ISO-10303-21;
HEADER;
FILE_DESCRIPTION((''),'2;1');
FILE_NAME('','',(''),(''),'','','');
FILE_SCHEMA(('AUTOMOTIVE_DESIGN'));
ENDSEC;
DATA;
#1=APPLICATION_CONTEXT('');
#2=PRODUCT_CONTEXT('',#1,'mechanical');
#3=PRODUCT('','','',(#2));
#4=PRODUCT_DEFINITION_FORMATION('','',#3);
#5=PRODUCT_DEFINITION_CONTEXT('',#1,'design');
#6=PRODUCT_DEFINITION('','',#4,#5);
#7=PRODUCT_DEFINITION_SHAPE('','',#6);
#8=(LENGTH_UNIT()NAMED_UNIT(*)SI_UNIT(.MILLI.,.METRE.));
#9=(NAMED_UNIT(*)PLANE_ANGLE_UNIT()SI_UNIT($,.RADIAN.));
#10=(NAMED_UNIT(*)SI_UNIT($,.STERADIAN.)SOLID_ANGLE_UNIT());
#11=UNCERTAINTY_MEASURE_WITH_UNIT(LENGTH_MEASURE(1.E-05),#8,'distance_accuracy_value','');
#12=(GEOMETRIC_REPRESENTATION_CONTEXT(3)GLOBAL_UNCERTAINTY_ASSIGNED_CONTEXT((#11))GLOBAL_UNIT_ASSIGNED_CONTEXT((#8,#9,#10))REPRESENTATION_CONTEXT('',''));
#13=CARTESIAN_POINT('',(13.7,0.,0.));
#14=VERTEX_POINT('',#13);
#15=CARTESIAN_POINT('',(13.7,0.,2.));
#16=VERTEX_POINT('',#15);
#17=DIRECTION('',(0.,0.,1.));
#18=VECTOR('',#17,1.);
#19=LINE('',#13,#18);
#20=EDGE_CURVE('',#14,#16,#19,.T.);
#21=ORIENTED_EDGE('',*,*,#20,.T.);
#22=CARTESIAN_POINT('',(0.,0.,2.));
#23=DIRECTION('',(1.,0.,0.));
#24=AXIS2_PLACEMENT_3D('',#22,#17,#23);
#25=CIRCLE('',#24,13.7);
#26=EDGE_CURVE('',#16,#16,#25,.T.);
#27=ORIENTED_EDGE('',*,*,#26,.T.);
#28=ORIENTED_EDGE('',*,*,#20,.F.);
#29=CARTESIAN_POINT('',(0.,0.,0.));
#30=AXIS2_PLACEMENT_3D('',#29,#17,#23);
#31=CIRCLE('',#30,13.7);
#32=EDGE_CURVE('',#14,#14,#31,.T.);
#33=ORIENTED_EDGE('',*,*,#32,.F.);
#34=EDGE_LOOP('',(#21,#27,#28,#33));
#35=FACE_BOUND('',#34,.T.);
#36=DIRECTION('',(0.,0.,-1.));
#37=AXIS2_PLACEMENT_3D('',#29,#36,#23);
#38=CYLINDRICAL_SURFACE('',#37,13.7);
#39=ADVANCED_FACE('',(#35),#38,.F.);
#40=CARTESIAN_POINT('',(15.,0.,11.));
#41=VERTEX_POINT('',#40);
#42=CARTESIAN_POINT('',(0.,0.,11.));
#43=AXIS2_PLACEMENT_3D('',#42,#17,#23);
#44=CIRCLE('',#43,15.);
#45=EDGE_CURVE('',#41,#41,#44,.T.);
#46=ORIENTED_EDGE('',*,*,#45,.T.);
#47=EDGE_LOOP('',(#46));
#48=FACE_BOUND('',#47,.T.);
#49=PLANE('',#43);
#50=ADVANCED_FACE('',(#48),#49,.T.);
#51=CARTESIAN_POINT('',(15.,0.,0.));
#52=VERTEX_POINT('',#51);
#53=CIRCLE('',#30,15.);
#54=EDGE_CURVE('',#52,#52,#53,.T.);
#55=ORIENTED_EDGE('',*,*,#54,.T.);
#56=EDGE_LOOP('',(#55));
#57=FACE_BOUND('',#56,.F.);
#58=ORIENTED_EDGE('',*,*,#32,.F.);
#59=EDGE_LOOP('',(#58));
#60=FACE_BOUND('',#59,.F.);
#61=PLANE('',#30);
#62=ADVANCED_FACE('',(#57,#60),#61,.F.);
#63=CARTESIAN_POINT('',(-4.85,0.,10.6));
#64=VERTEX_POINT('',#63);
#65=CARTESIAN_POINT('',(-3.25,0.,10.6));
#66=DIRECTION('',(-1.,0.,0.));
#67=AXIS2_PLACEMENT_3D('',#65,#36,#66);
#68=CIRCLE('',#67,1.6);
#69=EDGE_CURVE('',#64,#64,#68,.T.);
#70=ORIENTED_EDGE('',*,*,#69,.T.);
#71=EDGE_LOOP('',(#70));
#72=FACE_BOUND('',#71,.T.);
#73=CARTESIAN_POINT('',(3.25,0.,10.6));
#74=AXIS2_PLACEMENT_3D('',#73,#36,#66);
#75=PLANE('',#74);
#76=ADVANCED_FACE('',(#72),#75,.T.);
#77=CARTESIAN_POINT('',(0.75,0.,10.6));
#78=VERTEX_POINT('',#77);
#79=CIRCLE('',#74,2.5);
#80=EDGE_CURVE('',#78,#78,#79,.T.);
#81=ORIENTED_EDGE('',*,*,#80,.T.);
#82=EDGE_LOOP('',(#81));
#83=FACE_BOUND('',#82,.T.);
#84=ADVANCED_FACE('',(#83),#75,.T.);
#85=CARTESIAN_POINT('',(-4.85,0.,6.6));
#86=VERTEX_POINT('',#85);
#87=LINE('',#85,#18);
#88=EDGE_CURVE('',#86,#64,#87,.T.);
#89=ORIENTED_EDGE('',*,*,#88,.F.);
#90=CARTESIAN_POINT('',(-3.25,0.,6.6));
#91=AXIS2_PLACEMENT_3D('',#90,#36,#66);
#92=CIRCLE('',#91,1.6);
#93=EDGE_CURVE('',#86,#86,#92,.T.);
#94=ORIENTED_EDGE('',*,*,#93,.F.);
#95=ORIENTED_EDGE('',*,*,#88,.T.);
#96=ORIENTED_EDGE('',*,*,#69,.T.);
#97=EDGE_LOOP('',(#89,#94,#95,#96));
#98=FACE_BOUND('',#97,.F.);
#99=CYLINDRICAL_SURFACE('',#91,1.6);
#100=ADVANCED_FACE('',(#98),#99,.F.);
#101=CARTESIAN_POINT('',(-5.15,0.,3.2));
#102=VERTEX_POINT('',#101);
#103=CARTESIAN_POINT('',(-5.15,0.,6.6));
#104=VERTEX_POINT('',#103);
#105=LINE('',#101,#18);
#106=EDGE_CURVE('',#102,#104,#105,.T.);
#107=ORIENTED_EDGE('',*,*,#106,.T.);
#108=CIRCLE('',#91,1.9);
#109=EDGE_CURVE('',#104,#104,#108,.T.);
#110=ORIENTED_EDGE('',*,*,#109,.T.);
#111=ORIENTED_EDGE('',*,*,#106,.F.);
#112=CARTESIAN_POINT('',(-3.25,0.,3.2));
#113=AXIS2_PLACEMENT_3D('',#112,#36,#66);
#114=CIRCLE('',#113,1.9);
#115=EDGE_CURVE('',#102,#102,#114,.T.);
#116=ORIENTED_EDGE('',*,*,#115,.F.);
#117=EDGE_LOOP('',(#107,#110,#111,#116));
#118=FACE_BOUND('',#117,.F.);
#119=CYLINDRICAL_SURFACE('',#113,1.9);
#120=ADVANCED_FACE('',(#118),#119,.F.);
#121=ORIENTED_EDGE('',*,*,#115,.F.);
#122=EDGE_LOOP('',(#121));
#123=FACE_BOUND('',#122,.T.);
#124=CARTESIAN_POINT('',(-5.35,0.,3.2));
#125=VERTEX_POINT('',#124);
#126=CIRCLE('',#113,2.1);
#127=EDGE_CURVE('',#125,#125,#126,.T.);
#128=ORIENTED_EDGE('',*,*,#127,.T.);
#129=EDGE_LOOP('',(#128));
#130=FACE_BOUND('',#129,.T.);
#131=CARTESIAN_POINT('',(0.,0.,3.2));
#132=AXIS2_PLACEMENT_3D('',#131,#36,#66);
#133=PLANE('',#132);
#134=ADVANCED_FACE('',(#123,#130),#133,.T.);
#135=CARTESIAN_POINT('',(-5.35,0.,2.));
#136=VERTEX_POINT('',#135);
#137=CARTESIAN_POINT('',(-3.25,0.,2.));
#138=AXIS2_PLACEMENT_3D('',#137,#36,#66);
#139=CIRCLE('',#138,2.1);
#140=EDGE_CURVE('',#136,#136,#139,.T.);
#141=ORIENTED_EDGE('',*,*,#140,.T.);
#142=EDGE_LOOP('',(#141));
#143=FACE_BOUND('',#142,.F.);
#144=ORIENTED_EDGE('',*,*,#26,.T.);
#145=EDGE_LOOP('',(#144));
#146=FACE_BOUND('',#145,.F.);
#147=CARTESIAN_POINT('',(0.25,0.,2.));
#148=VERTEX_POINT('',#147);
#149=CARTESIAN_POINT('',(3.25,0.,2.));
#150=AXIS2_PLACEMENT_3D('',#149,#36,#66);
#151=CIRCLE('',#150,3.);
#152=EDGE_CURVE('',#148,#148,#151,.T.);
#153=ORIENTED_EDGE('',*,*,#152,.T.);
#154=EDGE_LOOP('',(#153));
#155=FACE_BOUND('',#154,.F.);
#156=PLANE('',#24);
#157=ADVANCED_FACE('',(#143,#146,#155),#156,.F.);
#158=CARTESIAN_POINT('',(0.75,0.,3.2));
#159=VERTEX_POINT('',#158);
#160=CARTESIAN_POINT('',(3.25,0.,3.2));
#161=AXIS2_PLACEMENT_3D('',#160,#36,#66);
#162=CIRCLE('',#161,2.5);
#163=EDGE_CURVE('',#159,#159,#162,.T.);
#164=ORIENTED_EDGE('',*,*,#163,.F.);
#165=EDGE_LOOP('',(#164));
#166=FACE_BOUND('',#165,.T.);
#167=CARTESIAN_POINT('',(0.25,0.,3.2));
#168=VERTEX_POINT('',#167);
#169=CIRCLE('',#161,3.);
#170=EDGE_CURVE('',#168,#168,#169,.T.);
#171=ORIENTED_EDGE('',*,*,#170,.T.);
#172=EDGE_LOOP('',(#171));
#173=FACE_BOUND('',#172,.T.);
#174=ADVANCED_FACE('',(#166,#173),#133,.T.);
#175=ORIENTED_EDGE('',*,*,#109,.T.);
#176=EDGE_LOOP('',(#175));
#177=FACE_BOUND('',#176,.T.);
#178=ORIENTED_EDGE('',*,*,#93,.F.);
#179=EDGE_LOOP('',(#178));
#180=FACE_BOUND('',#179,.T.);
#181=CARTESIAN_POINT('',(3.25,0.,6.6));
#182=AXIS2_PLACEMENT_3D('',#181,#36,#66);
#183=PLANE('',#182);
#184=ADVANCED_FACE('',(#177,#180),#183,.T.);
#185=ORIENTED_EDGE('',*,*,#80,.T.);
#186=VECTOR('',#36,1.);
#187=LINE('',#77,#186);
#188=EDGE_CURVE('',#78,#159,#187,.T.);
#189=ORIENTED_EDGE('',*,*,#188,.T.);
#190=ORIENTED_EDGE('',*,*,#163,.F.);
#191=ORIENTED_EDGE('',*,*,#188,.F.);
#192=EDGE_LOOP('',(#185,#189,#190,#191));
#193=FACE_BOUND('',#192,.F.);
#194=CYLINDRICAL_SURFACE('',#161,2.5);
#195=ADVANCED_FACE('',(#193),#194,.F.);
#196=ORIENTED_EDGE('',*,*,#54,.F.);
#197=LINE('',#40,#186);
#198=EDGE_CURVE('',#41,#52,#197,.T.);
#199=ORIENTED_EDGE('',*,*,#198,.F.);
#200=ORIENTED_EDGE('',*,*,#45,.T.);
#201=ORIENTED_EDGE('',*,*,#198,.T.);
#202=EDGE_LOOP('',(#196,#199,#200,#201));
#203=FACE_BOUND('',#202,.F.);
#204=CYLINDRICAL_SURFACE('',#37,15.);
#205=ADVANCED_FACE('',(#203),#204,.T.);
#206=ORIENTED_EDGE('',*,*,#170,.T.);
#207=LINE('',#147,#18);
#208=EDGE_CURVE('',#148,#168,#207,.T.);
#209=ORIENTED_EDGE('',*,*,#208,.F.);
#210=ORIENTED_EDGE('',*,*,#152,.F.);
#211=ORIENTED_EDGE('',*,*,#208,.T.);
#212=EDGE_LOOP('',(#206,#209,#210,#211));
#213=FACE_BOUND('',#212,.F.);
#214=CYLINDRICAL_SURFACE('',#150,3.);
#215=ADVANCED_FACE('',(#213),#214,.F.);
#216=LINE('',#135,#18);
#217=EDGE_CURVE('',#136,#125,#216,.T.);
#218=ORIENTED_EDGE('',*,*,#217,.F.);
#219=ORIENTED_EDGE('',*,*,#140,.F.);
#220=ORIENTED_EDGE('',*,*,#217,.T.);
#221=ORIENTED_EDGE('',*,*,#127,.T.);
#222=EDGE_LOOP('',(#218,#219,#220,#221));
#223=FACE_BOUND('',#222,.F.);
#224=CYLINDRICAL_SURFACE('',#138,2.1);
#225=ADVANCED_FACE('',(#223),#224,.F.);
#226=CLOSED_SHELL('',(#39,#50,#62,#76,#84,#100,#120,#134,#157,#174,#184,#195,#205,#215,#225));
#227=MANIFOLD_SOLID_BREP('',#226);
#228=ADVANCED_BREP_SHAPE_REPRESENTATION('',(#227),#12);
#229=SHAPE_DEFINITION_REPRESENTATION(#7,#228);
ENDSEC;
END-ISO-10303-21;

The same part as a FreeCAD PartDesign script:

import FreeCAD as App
import Part
import Sketcher
from FreeCAD import Vector

doc = App.newDocument("Part")
body = doc.addObject("PartDesign::Body", "Body")

sketch1 = body.newObject("Sketcher::SketchObject", "Sketch")
sketch1.AttachmentSupport = (doc.getObject("XY_Plane"), [""])
sketch1.MapMode = "FlatFace"
sketch1.addGeometry([
    Part.Circle(Vector(0, 0, 0), Vector(0, 0, 1), 15),
    Part.Circle(Vector(0, 0, 0), Vector(0, 0, 1), 14),
], False)
sketch1.addConstraint([
    Sketcher.Constraint("Coincident", 0, 3, -1, 1),
    Sketcher.Constraint("Coincident", 1, 3, -1, 1),
    Sketcher.Constraint("Diameter", 0, 30.0),
    Sketcher.Constraint("Diameter", 1, 27.4),
])
pad1 = body.newObject("PartDesign::Pad", "Pad")
pad1.Profile = sketch1
pad1.Length = 2

sketch2 = body.newObject("Sketcher::SketchObject", "Sketch001")
sketch2.AttachmentSupport = (doc.getObject("XY_Plane"), [""])
sketch2.MapMode = "FlatFace"
sketch2.AttachmentOffset = App.Placement(Vector(0, 0, 2), App.Rotation())
sketch2.addGeometry(Part.Circle(Vector(0, 0, 0), Vector(0, 0, 1), 15), False)
sketch2.addConstraint([
    Sketcher.Constraint("Coincident", 0, 3, -1, 1),
    Sketcher.Constraint("Diameter", 0, 30.0),
])
pad2 = body.newObject("PartDesign::Pad", "Pad001")
pad2.Profile = sketch2
pad2.Length = 9

sketch3 = body.newObject("Sketcher::SketchObject", "Sketch002")
sketch3.AttachmentSupport = (doc.getObject("XY_Plane"), [""])
sketch3.MapMode = "FlatFace"
sketch3.AttachmentOffset = App.Placement(Vector(0, 0, 2), App.Rotation())
sketch3.addGeometry([
    Part.Circle(Vector(-3.2, 0, 0), Vector(0, 0, 1), 2.1),
    Part.Circle(Vector(3.2, 0, 0), Vector(0, 0, 1), 3),
], False)
sketch3.addConstraint([
    Sketcher.Constraint("Symmetric", 0, 3, 1, 3, -1, 1),
    Sketcher.Constraint("PointOnObject", 0, 3, -1),
    Sketcher.Constraint("Diameter", 1, 6.0),
    Sketcher.Constraint("Diameter", 0, 4.2),
    Sketcher.Constraint("DistanceX", 0, 3, 1, 3, 6.5),
])
pocket1 = body.newObject("PartDesign::Pocket", "Pocket")
pocket1.Profile = sketch3
pocket1.Length = 1.2
pocket1.Reversed = True

sketch4 = body.newObject("Sketcher::SketchObject", "Sketch003")
sketch4.AttachmentSupport = (doc.getObject("XY_Plane"), [""])
sketch4.MapMode = "FlatFace"
sketch4.AttachmentOffset = App.Placement(Vector(0, 0, 3.2), App.Rotation())
sketch4.addGeometry([
    Part.Circle(Vector(3.2, 0, 0), Vector(0, 0, 1), 2.5),
    Part.Circle(Vector(-3.2, 0, 0), Vector(0, 0, 1), 1.9),
], False)
sketch4.addConstraint([
    Sketcher.Constraint("Symmetric", 0, 3, 1, 3, -1, 1),
    Sketcher.Constraint("PointOnObject", 0, 3, -1),
    Sketcher.Constraint("Diameter", 0, 5.0),
    Sketcher.Constraint("Diameter", 1, 3.8),
    Sketcher.Constraint("DistanceX", 1, 3, 0, 3, 6.5),
])
pocket2 = body.newObject("PartDesign::Pocket", "Pocket001")
pocket2.Profile = sketch4
pocket2.Length = 3.4
pocket2.Reversed = True

sketch5 = body.newObject("Sketcher::SketchObject", "Sketch004")
sketch5.AttachmentSupport = (doc.getObject("XY_Plane"), [""])
sketch5.MapMode = "FlatFace"
sketch5.AttachmentOffset = App.Placement(Vector(0, 0, 6.6), App.Rotation())
sketch5.addGeometry([
    Part.Circle(Vector(-3.2, 0, 0), Vector(0, 0, 1), 1.6),
    Part.Circle(Vector(3.2, 0, 0), Vector(0, 0, 1), 2.5),
], False)
sketch5.addConstraint([
    Sketcher.Constraint("Symmetric", 0, 3, 1, 3, -1, 1),
    Sketcher.Constraint("PointOnObject", 0, 3, -1),
    Sketcher.Constraint("Diameter", 1, 5.0),
    Sketcher.Constraint("Diameter", 0, 3.2),
    Sketcher.Constraint("DistanceX", 0, 3, 1, 3, 6.5),
])
pocket3 = body.newObject("PartDesign::Pocket", "Pocket002")
pocket3.Profile = sketch5
pocket3.Length = 4
pocket3.Reversed = True

doc.recompute()
